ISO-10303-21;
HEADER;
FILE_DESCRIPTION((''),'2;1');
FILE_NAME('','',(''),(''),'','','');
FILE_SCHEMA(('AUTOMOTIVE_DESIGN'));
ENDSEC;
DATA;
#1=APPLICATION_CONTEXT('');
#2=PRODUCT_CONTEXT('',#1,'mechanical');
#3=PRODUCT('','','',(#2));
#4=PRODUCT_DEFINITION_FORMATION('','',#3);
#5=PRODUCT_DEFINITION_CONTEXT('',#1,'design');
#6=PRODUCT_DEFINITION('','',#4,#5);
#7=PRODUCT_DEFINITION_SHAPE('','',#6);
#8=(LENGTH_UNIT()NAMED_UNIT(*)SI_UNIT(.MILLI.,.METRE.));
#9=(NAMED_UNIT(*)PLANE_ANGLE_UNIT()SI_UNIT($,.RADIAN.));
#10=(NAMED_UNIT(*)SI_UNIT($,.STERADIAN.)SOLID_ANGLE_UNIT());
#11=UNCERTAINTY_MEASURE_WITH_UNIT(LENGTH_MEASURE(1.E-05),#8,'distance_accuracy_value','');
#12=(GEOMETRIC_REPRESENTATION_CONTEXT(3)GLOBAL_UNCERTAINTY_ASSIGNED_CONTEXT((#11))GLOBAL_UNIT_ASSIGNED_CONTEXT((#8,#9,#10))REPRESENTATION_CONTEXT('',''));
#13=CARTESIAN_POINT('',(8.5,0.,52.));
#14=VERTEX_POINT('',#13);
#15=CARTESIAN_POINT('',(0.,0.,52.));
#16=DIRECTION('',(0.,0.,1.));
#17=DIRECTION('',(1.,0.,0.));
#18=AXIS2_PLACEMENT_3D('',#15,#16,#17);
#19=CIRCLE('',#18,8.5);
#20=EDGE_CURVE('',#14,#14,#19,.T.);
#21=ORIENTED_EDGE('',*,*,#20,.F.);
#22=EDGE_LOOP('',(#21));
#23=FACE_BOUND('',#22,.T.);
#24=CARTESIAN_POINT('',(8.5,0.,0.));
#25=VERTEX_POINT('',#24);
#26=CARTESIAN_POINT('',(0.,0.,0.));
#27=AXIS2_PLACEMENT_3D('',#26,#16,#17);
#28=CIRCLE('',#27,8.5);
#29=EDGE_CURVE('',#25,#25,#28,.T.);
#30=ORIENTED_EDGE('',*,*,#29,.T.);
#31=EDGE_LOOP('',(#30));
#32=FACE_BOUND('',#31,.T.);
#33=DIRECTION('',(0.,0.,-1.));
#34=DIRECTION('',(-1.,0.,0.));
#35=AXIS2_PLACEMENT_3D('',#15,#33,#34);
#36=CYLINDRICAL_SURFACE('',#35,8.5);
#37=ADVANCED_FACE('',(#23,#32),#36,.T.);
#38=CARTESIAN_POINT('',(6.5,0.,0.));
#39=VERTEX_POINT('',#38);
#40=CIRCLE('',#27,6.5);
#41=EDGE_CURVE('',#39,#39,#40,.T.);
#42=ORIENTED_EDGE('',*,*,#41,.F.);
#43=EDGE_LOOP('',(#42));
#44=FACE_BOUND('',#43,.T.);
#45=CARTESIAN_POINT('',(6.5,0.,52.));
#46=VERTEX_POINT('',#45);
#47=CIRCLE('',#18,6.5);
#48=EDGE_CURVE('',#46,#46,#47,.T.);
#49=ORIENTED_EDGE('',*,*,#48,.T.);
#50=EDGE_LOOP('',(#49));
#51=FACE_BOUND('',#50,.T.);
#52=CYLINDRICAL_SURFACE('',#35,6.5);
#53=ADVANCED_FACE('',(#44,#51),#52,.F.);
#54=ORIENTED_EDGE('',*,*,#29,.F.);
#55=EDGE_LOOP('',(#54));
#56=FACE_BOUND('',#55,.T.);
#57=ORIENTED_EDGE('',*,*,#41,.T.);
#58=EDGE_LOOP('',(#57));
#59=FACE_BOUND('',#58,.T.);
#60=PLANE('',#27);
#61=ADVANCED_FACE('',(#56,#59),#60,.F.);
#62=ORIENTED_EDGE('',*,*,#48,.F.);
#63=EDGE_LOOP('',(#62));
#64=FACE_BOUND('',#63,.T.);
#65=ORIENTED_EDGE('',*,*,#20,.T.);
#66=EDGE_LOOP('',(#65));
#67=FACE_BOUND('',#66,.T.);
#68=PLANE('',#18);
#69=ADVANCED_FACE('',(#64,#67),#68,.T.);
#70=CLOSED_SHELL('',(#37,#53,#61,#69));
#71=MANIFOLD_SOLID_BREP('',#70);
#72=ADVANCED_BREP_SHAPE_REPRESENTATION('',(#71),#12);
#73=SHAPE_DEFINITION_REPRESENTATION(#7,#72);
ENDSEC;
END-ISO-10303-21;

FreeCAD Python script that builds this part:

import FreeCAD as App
import Part
import Sketcher

V = App.Vector
Q = App.Units.Quantity

doc = App.newDocument("Part")
body = doc.addObject("PartDesign::Body", "Body")

sketch1 = body.newObject("Sketcher::SketchObject", "Sketch")
sketch1.AttachmentSupport = (doc.getObject("XY_Plane"), [""])
sketch1.MapMode = "FlatFace"
sketch1.addGeometry([
    Part.Circle(V(0, 0, 0), V(0, 0, 1), 8),
    Part.Circle(V(0, 0, 0), V(0, 0, 1), 6),
], False)
sketch1.addConstraint([
    Sketcher.Constraint("Coincident", 0, 3, -1, 1),
    Sketcher.Constraint("Coincident", 1, 3, -1, 1),
    Sketcher.Constraint("Diameter", 0, Q("17 mm")),
    Sketcher.Constraint("Diameter", 1, Q("13 mm")),
])
pad1 = body.newObject("PartDesign::Pad", "Pad")
pad1.Profile = sketch1
pad1.Length = 52

doc.recompute()
